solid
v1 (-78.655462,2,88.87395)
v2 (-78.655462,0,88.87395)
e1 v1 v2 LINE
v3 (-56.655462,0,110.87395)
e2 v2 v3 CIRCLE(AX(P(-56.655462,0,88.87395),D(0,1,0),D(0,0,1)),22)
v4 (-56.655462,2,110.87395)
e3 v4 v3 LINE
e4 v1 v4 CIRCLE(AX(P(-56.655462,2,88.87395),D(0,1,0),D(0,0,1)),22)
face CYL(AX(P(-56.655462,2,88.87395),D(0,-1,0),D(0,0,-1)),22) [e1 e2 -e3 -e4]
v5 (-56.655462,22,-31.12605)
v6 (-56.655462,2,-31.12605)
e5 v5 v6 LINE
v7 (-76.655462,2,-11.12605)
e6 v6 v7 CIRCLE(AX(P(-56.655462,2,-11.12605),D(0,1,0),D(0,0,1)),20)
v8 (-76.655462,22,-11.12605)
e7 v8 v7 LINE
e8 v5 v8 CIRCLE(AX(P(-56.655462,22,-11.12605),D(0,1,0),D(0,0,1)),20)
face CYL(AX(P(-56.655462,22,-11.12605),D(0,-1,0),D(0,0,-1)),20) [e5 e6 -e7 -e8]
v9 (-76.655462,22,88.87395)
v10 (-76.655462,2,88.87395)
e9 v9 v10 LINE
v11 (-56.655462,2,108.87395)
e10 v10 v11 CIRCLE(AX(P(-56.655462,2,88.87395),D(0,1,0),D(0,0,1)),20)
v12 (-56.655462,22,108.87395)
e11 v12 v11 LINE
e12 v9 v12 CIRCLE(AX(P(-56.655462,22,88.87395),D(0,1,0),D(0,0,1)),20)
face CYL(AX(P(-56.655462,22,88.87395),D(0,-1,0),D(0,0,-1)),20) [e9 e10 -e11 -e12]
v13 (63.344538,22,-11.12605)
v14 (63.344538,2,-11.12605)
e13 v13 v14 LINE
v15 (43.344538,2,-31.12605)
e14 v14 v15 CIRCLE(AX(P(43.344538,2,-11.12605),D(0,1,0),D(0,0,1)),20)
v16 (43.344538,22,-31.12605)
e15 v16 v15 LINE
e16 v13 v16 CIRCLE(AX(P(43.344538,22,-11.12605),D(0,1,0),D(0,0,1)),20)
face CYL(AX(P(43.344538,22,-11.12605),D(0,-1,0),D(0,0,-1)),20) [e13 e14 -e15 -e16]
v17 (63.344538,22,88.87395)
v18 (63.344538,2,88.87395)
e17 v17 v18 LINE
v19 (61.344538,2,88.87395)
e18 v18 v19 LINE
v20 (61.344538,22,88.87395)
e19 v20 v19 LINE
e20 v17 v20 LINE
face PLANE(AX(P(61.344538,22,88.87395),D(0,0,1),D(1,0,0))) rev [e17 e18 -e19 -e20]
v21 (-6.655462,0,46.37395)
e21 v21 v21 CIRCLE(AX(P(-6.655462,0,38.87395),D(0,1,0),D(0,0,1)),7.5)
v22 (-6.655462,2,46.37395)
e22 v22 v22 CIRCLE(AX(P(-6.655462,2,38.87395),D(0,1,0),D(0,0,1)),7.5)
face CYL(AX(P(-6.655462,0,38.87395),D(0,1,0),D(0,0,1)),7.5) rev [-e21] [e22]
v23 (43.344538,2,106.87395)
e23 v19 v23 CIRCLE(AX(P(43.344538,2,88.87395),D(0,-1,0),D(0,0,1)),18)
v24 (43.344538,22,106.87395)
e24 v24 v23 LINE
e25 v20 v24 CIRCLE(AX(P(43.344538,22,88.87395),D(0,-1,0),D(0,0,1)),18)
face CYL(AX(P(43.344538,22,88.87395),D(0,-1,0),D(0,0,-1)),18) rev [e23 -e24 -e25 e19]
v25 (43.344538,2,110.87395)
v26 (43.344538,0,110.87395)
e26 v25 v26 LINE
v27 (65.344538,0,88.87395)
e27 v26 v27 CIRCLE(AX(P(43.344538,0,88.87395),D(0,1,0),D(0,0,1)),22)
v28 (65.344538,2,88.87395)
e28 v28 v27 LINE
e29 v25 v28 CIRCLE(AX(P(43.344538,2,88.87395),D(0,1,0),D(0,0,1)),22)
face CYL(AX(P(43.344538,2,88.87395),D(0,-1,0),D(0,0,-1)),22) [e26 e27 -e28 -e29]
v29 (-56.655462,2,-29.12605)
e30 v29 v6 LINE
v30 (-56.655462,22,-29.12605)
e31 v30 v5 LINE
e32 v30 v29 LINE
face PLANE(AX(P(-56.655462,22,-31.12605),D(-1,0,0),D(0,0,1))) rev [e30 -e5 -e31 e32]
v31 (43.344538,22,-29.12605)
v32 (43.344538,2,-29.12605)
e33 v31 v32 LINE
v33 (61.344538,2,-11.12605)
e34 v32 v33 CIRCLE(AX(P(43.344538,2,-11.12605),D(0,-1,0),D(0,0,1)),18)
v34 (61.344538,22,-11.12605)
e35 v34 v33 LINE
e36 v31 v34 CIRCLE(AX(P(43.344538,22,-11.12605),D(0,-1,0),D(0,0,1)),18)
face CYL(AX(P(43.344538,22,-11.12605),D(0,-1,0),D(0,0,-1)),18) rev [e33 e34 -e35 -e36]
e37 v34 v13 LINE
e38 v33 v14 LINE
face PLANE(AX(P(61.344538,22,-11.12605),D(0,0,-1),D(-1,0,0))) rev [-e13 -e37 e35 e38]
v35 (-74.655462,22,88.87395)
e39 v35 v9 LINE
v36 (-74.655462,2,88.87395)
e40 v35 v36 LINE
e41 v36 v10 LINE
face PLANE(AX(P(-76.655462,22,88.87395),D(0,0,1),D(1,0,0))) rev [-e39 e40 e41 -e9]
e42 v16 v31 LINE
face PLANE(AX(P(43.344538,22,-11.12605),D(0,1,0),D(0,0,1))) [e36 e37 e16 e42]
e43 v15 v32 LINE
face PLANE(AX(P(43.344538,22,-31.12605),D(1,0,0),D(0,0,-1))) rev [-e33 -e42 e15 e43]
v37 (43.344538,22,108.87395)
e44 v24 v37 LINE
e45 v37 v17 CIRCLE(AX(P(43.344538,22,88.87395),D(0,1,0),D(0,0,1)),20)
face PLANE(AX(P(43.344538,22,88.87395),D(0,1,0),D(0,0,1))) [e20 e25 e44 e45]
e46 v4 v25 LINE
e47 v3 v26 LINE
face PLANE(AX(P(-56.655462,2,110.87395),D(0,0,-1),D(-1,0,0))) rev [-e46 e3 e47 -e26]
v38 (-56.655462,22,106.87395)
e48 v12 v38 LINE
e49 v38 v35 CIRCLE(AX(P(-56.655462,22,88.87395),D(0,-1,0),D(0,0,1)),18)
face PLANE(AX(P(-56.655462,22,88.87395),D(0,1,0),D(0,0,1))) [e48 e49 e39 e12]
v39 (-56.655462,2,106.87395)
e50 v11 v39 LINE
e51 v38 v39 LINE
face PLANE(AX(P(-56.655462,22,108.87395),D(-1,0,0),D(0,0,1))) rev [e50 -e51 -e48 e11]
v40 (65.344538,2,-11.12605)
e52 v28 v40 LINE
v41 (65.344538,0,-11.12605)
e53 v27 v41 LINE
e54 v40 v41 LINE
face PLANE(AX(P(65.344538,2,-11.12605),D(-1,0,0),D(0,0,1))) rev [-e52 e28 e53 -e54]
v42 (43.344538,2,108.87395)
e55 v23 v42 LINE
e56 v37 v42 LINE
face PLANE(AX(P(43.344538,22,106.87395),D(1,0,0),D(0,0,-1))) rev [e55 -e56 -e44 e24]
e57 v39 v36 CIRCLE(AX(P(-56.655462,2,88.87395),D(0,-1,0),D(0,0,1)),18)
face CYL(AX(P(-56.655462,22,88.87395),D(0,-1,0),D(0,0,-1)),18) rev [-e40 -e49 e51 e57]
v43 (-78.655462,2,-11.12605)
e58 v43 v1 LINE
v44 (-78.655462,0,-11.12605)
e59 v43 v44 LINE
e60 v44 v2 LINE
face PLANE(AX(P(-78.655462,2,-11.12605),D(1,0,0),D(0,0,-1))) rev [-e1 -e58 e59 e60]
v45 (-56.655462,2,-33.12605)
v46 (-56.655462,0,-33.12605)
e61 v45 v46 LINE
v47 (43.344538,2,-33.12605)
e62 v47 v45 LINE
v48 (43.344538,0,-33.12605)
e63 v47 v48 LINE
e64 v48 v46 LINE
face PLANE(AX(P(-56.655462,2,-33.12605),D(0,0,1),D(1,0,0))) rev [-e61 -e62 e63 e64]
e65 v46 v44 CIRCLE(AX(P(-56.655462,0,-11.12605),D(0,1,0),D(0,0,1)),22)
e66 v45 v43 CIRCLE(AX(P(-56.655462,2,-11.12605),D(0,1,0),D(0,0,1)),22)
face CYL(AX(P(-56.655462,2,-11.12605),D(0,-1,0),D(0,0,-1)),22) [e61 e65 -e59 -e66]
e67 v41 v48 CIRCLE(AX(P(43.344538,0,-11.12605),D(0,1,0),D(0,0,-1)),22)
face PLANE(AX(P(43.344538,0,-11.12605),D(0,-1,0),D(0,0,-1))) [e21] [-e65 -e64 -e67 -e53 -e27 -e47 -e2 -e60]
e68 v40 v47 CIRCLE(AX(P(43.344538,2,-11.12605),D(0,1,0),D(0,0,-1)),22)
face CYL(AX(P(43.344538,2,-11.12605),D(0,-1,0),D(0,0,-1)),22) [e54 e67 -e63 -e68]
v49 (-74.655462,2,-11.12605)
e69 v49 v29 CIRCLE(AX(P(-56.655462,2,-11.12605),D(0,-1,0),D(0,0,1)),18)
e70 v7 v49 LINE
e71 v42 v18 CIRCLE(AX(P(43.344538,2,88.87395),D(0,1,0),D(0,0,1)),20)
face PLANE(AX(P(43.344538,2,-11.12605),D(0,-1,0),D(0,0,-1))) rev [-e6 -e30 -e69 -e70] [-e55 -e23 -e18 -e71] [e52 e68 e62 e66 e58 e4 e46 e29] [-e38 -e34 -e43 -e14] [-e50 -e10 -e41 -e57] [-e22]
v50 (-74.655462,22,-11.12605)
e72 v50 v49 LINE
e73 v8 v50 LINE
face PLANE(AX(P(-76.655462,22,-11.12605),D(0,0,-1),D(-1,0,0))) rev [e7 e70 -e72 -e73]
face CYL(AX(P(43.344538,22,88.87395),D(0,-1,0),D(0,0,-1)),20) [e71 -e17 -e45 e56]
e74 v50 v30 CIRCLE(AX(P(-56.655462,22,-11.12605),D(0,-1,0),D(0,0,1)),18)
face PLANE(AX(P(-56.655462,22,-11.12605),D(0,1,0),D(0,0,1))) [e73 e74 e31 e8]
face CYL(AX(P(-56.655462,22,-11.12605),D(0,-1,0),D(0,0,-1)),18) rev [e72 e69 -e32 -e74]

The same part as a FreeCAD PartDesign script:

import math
import FreeCAD as App
import Part
import Sketcher
Q = App.Units.Quantity

doc = App.newDocument("Part")
body = doc.addObject("PartDesign::Body", "Body")

sketch1 = body.newObject("Sketcher::SketchObject", "Sketch")
sketch1.AttachmentSupport = (doc.getObject("XZ_Plane"), [""])
sketch1.MapMode = "FlatFace"
sketch1.addGeometry([
    Part.LineSegment(App.Vector(43, -33, 0), App.Vector(-57, -33, 0)),
    Part.ArcOfCircle(Part.Circle(App.Vector(-57, -11, 0), App.Vector(0, 0, 1), 22), math.radians(180), math.radians(270)),
    Part.LineSegment(App.Vector(-79, -11, 0), App.Vector(-79, 89, 0)),
    Part.ArcOfCircle(Part.Circle(App.Vector(-57, 89, 0), App.Vector(0, 0, 1), 22), math.radians(90), math.radians(180)),
    Part.LineSegment(App.Vector(-57, 111, 0), App.Vector(43, 111, 0)),
    Part.ArcOfCircle(Part.Circle(App.Vector(43, 89, 0), App.Vector(0, 0, 1), 22), math.radians(0), math.radians(90)),
    Part.LineSegment(App.Vector(65, 89, 0), App.Vector(65, -11, 0)),
    Part.ArcOfCircle(Part.Circle(App.Vector(43, -11, 0), App.Vector(0, 0, 1), 22), math.radians(-90), math.radians(0)),
], False)
sketch1.addConstraint([
    Sketcher.Constraint("Tangent", 0, 2, 1, 2),
    Sketcher.Constraint("Tangent", 1, 1, 2, 1),
    Sketcher.Constraint("Tangent", 2, 2, 3, 2),
    Sketcher.Constraint("Tangent", 3, 1, 4, 1),
    Sketcher.Constraint("Tangent", 4, 2, 5, 2),
    Sketcher.Constraint("Tangent", 5, 1, 6, 1),
    Sketcher.Constraint("Tangent", 6, 2, 7, 2),
    Sketcher.Constraint("Tangent", 7, 1, 0, 1),
    Sketcher.Constraint("Horizontal", 0),
    Sketcher.Constraint("Vertical", 2),
    Sketcher.Constraint("Horizontal", 4),
    Sketcher.Constraint("Vertical", 6),
    Sketcher.Constraint("Equal", 1, 3),
    Sketcher.Constraint("Equal", 3, 5),
    Sketcher.Constraint("Equal", 5, 7),
    Sketcher.Constraint("Equal", 4, 2),
    Sketcher.Constraint("Radius", 1, Q("22 mm")),
    Sketcher.Constraint("DistanceX", 0, 2, 0, 1, Q("100 mm")),
    Sketcher.Constraint("DistanceY", 1, 3, -1, 1, Q("11.12605 mm")),
    Sketcher.Constraint("DistanceX", 1, 3, -1, 1, Q("56.655462 mm")),
])
pad1 = body.newObject("PartDesign::Pad", "Pad")
pad1.Profile = sketch1
pad1.Length = 2
pad1.Reversed = True

sketch2 = body.newObject("Sketcher::SketchObject", "Sketch001")
sketch2.AttachmentSupport = (doc.getObject("XZ_Plane"), [""])
sketch2.MapMode = "FlatFace"
sketch2.AttachmentOffset = App.Placement(App.Vector(0, 0, -2), App.Rotation())
sketch2.addGeometry([
    Part.LineSegment(App.Vector(43.3, -31.1, 0), App.Vector(43.3, -29.1, 0)),
    Part.ArcOfCircle(Part.Circle(App.Vector(43.3, -11.1, 0), App.Vector(0, 0, 1), 18), math.radians(-90), math.radians(0)),
    Part.LineSegment(App.Vector(61.3, -11.1, 0), App.Vector(63.3, -11.1, 0)),
    Part.ArcOfCircle(Part.Circle(App.Vector(43.3, -11.1, 0), App.Vector(0, 0, 1), 20), math.radians(-90), math.radians(0)),
    Part.LineSegment(App.Vector(43.3, 106.9, 0), App.Vector(43.3, 108.9, 0)),
    Part.ArcOfCircle(Part.Circle(App.Vector(43.3, 88.9, 0), App.Vector(0, 0, 1), 20), math.radians(0), math.radians(90)),
    Part.LineSegment(App.Vector(63.3, 88.9, 0), App.Vector(61.3, 88.9, 0)),
    Part.ArcOfCircle(Part.Circle(App.Vector(43.3, 88.9, 0), App.Vector(0, 0, 1), 18), math.radians(0), math.radians(90)),
    Part.LineSegment(App.Vector(-74.7, 88.9, 0), App.Vector(-76.7, 88.9, 0)),
    Part.ArcOfCircle(Part.Circle(App.Vector(-56.7, 88.9, 0), App.Vector(0, 0, 1), 20), math.radians(90), math.radians(180)),
    Part.LineSegment(App.Vector(-56.7, 108.9, 0), App.Vector(-56.7, 106.9, 0)),
    Part.ArcOfCircle(Part.Circle(App.Vector(-56.7, 88.9, 0), App.Vector(0, 0, 1), 18), math.radians(90), math.radians(180)),
    Part.LineSegment(App.Vector(-76.7, -11.1, 0), App.Vector(-74.7, -11.1, 0)),
    Part.ArcOfCircle(Part.Circle(App.Vector(-56.7, -11.1, 0), App.Vector(0, 0, 1), 18), math.radians(180), math.radians(270)),
    Part.LineSegment(App.Vector(-56.7, -29.1, 0), App.Vector(-56.7, -31.1, 0)),
    Part.ArcOfCircle(Part.Circle(App.Vector(-56.7, -11.1, 0), App.Vector(0, 0, 1), 20), math.radians(180), math.radians(270)),
], False)
sketch2.addConstraint([
    Sketcher.Constraint("Coincident", 0, 2, 1, 1),
    Sketcher.Constraint("Coincident", 1, 2, 2, 1),
    Sketcher.Constraint("Coincident", 2, 2, 3, 2),
    Sketcher.Constraint("Coincident", 3, 1, 0, 1),
    Sketcher.Constraint("Coincident", 4, 2, 5, 2),
    Sketcher.Constraint("Coincident", 5, 1, 6, 1),
    Sketcher.Constraint("Coincident", 6, 2, 7, 1),
    Sketcher.Constraint("Coincident", 7, 2, 4, 1),
    Sketcher.Constraint("Coincident", 8, 2, 9, 2),
    Sketcher.Constraint("Coincident", 9, 1, 10, 1),
    Sketcher.Constraint("Coincident", 10, 2, 11, 1),
    Sketcher.Constraint("Coincident", 11, 2, 8, 1),
    Sketcher.Constraint("Coincident", 12, 2, 13, 1),
    Sketcher.Constraint("Coincident", 13, 2, 14, 1),
    Sketcher.Constraint("Coincident", 14, 2, 15, 2),
    Sketcher.Constraint("Coincident", 15, 1, 12, 1),
    Sketcher.Constraint("Vertical", 0),
    Sketcher.Constraint("Horizontal", 2),
    Sketcher.Constraint("Vertical", 4),
    Sketcher.Constraint("Horizontal", 6),
    Sketcher.Constraint("Horizontal", 8),
    Sketcher.Constraint("Vertical", 10),
    Sketcher.Constraint("Horizontal", 12),
    Sketcher.Constraint("Vertical", 14),
    Sketcher.Constraint("Coincident", 3, 3, 1, 3),
    Sketcher.Constraint("Coincident", 7, 3, 5, 3),
    Sketcher.Constraint("Coincident", 11, 3, 9, 3),
    Sketcher.Constraint("Coincident", 15, 3, 13, 3),
    Sketcher.Constraint("Equal", 3, 5),
    Sketcher.Constraint("Equal", 1, 7),
    Sketcher.Constraint("Equal", 5, 9),
    Sketcher.Constraint("Equal", 7, 11),
    Sketcher.Constraint("Equal", 11, 13),
    Sketcher.Constraint("Equal", 9, 15),
    Sketcher.Constraint("Horizontal", 7, 3, 9, 3),
    Sketcher.Constraint("Horizontal", 3, 3, 13, 3),
    Sketcher.Constraint("Horizontal", 15, 3, 1, 2),
    Sketcher.Constraint("Horizontal", 11, 3, 5, 1),
    Sketcher.Constraint("Horizontal", 6, 2, 8, 2),
    Sketcher.Constraint("Horizontal", 2, 2, 12, 2),
    Sketcher.Constraint("Vertical", 3, 3, 5, 3),
    Sketcher.Constraint("Vertical", 11, 3, 13, 3),
    Sketcher.Constraint("Vertical", 7, 3, 0, 2),
    Sketcher.Constraint("Vertical", 3, 1, 4, 2),
    Sketcher.Constraint("Vertical", 15, 3, 9, 1),
    Sketcher.Constraint("Vertical", 10, 2, 13, 2),
    Sketcher.Constraint("Radius", 1, Q("18 mm")),
    Sketcher.Constraint("Radius", 3, Q("20 mm")),
    Sketcher.Constraint("DistanceY", 1, 3, 5, 3, Q("100 mm")),
    Sketcher.Constraint("DistanceX", 9, 3, 7, 3, Q("100 mm")),
    Sketcher.Constraint("DistanceY", 1, 3, -1, 1, Q("11.12605 mm")),
    Sketcher.Constraint("DistanceX", -1, 1, 1, 3, Q("43.344538 mm")),
])
pad2 = body.newObject("PartDesign::Pad", "Pad001")
pad2.Profile = sketch2
pad2.Length = 20
pad2.Reversed = True

sketch3 = body.newObject("Sketcher::SketchObject", "Sketch002")
sketch3.AttachmentSupport = (doc.getObject("XZ_Plane"), [""])
sketch3.MapMode = "FlatFace"
sketch3.AttachmentOffset = App.Placement(App.Vector(0, 0, -2), App.Rotation())
sketch3.addGeometry(Part.Circle(App.Vector(-7, 39, 0), App.Vector(0, 0, 1), 8), False)
sketch3.addConstraint([
    Sketcher.Constraint("Diameter", 0, Q("15 mm")),
    Sketcher.Constraint("DistanceY", -1, 1, 0, 3, Q("38.87395 mm")),
    Sketcher.Constraint("DistanceX", 0, 3, -1, 1, Q("6.655462 mm")),
])
pocket1 = body.newObject("PartDesign::Pocket", "Pocket")
pocket1.Profile = sketch3
pocket1.Type = "ThroughAll"
pocket1.Reversed = True

doc.recompute()
